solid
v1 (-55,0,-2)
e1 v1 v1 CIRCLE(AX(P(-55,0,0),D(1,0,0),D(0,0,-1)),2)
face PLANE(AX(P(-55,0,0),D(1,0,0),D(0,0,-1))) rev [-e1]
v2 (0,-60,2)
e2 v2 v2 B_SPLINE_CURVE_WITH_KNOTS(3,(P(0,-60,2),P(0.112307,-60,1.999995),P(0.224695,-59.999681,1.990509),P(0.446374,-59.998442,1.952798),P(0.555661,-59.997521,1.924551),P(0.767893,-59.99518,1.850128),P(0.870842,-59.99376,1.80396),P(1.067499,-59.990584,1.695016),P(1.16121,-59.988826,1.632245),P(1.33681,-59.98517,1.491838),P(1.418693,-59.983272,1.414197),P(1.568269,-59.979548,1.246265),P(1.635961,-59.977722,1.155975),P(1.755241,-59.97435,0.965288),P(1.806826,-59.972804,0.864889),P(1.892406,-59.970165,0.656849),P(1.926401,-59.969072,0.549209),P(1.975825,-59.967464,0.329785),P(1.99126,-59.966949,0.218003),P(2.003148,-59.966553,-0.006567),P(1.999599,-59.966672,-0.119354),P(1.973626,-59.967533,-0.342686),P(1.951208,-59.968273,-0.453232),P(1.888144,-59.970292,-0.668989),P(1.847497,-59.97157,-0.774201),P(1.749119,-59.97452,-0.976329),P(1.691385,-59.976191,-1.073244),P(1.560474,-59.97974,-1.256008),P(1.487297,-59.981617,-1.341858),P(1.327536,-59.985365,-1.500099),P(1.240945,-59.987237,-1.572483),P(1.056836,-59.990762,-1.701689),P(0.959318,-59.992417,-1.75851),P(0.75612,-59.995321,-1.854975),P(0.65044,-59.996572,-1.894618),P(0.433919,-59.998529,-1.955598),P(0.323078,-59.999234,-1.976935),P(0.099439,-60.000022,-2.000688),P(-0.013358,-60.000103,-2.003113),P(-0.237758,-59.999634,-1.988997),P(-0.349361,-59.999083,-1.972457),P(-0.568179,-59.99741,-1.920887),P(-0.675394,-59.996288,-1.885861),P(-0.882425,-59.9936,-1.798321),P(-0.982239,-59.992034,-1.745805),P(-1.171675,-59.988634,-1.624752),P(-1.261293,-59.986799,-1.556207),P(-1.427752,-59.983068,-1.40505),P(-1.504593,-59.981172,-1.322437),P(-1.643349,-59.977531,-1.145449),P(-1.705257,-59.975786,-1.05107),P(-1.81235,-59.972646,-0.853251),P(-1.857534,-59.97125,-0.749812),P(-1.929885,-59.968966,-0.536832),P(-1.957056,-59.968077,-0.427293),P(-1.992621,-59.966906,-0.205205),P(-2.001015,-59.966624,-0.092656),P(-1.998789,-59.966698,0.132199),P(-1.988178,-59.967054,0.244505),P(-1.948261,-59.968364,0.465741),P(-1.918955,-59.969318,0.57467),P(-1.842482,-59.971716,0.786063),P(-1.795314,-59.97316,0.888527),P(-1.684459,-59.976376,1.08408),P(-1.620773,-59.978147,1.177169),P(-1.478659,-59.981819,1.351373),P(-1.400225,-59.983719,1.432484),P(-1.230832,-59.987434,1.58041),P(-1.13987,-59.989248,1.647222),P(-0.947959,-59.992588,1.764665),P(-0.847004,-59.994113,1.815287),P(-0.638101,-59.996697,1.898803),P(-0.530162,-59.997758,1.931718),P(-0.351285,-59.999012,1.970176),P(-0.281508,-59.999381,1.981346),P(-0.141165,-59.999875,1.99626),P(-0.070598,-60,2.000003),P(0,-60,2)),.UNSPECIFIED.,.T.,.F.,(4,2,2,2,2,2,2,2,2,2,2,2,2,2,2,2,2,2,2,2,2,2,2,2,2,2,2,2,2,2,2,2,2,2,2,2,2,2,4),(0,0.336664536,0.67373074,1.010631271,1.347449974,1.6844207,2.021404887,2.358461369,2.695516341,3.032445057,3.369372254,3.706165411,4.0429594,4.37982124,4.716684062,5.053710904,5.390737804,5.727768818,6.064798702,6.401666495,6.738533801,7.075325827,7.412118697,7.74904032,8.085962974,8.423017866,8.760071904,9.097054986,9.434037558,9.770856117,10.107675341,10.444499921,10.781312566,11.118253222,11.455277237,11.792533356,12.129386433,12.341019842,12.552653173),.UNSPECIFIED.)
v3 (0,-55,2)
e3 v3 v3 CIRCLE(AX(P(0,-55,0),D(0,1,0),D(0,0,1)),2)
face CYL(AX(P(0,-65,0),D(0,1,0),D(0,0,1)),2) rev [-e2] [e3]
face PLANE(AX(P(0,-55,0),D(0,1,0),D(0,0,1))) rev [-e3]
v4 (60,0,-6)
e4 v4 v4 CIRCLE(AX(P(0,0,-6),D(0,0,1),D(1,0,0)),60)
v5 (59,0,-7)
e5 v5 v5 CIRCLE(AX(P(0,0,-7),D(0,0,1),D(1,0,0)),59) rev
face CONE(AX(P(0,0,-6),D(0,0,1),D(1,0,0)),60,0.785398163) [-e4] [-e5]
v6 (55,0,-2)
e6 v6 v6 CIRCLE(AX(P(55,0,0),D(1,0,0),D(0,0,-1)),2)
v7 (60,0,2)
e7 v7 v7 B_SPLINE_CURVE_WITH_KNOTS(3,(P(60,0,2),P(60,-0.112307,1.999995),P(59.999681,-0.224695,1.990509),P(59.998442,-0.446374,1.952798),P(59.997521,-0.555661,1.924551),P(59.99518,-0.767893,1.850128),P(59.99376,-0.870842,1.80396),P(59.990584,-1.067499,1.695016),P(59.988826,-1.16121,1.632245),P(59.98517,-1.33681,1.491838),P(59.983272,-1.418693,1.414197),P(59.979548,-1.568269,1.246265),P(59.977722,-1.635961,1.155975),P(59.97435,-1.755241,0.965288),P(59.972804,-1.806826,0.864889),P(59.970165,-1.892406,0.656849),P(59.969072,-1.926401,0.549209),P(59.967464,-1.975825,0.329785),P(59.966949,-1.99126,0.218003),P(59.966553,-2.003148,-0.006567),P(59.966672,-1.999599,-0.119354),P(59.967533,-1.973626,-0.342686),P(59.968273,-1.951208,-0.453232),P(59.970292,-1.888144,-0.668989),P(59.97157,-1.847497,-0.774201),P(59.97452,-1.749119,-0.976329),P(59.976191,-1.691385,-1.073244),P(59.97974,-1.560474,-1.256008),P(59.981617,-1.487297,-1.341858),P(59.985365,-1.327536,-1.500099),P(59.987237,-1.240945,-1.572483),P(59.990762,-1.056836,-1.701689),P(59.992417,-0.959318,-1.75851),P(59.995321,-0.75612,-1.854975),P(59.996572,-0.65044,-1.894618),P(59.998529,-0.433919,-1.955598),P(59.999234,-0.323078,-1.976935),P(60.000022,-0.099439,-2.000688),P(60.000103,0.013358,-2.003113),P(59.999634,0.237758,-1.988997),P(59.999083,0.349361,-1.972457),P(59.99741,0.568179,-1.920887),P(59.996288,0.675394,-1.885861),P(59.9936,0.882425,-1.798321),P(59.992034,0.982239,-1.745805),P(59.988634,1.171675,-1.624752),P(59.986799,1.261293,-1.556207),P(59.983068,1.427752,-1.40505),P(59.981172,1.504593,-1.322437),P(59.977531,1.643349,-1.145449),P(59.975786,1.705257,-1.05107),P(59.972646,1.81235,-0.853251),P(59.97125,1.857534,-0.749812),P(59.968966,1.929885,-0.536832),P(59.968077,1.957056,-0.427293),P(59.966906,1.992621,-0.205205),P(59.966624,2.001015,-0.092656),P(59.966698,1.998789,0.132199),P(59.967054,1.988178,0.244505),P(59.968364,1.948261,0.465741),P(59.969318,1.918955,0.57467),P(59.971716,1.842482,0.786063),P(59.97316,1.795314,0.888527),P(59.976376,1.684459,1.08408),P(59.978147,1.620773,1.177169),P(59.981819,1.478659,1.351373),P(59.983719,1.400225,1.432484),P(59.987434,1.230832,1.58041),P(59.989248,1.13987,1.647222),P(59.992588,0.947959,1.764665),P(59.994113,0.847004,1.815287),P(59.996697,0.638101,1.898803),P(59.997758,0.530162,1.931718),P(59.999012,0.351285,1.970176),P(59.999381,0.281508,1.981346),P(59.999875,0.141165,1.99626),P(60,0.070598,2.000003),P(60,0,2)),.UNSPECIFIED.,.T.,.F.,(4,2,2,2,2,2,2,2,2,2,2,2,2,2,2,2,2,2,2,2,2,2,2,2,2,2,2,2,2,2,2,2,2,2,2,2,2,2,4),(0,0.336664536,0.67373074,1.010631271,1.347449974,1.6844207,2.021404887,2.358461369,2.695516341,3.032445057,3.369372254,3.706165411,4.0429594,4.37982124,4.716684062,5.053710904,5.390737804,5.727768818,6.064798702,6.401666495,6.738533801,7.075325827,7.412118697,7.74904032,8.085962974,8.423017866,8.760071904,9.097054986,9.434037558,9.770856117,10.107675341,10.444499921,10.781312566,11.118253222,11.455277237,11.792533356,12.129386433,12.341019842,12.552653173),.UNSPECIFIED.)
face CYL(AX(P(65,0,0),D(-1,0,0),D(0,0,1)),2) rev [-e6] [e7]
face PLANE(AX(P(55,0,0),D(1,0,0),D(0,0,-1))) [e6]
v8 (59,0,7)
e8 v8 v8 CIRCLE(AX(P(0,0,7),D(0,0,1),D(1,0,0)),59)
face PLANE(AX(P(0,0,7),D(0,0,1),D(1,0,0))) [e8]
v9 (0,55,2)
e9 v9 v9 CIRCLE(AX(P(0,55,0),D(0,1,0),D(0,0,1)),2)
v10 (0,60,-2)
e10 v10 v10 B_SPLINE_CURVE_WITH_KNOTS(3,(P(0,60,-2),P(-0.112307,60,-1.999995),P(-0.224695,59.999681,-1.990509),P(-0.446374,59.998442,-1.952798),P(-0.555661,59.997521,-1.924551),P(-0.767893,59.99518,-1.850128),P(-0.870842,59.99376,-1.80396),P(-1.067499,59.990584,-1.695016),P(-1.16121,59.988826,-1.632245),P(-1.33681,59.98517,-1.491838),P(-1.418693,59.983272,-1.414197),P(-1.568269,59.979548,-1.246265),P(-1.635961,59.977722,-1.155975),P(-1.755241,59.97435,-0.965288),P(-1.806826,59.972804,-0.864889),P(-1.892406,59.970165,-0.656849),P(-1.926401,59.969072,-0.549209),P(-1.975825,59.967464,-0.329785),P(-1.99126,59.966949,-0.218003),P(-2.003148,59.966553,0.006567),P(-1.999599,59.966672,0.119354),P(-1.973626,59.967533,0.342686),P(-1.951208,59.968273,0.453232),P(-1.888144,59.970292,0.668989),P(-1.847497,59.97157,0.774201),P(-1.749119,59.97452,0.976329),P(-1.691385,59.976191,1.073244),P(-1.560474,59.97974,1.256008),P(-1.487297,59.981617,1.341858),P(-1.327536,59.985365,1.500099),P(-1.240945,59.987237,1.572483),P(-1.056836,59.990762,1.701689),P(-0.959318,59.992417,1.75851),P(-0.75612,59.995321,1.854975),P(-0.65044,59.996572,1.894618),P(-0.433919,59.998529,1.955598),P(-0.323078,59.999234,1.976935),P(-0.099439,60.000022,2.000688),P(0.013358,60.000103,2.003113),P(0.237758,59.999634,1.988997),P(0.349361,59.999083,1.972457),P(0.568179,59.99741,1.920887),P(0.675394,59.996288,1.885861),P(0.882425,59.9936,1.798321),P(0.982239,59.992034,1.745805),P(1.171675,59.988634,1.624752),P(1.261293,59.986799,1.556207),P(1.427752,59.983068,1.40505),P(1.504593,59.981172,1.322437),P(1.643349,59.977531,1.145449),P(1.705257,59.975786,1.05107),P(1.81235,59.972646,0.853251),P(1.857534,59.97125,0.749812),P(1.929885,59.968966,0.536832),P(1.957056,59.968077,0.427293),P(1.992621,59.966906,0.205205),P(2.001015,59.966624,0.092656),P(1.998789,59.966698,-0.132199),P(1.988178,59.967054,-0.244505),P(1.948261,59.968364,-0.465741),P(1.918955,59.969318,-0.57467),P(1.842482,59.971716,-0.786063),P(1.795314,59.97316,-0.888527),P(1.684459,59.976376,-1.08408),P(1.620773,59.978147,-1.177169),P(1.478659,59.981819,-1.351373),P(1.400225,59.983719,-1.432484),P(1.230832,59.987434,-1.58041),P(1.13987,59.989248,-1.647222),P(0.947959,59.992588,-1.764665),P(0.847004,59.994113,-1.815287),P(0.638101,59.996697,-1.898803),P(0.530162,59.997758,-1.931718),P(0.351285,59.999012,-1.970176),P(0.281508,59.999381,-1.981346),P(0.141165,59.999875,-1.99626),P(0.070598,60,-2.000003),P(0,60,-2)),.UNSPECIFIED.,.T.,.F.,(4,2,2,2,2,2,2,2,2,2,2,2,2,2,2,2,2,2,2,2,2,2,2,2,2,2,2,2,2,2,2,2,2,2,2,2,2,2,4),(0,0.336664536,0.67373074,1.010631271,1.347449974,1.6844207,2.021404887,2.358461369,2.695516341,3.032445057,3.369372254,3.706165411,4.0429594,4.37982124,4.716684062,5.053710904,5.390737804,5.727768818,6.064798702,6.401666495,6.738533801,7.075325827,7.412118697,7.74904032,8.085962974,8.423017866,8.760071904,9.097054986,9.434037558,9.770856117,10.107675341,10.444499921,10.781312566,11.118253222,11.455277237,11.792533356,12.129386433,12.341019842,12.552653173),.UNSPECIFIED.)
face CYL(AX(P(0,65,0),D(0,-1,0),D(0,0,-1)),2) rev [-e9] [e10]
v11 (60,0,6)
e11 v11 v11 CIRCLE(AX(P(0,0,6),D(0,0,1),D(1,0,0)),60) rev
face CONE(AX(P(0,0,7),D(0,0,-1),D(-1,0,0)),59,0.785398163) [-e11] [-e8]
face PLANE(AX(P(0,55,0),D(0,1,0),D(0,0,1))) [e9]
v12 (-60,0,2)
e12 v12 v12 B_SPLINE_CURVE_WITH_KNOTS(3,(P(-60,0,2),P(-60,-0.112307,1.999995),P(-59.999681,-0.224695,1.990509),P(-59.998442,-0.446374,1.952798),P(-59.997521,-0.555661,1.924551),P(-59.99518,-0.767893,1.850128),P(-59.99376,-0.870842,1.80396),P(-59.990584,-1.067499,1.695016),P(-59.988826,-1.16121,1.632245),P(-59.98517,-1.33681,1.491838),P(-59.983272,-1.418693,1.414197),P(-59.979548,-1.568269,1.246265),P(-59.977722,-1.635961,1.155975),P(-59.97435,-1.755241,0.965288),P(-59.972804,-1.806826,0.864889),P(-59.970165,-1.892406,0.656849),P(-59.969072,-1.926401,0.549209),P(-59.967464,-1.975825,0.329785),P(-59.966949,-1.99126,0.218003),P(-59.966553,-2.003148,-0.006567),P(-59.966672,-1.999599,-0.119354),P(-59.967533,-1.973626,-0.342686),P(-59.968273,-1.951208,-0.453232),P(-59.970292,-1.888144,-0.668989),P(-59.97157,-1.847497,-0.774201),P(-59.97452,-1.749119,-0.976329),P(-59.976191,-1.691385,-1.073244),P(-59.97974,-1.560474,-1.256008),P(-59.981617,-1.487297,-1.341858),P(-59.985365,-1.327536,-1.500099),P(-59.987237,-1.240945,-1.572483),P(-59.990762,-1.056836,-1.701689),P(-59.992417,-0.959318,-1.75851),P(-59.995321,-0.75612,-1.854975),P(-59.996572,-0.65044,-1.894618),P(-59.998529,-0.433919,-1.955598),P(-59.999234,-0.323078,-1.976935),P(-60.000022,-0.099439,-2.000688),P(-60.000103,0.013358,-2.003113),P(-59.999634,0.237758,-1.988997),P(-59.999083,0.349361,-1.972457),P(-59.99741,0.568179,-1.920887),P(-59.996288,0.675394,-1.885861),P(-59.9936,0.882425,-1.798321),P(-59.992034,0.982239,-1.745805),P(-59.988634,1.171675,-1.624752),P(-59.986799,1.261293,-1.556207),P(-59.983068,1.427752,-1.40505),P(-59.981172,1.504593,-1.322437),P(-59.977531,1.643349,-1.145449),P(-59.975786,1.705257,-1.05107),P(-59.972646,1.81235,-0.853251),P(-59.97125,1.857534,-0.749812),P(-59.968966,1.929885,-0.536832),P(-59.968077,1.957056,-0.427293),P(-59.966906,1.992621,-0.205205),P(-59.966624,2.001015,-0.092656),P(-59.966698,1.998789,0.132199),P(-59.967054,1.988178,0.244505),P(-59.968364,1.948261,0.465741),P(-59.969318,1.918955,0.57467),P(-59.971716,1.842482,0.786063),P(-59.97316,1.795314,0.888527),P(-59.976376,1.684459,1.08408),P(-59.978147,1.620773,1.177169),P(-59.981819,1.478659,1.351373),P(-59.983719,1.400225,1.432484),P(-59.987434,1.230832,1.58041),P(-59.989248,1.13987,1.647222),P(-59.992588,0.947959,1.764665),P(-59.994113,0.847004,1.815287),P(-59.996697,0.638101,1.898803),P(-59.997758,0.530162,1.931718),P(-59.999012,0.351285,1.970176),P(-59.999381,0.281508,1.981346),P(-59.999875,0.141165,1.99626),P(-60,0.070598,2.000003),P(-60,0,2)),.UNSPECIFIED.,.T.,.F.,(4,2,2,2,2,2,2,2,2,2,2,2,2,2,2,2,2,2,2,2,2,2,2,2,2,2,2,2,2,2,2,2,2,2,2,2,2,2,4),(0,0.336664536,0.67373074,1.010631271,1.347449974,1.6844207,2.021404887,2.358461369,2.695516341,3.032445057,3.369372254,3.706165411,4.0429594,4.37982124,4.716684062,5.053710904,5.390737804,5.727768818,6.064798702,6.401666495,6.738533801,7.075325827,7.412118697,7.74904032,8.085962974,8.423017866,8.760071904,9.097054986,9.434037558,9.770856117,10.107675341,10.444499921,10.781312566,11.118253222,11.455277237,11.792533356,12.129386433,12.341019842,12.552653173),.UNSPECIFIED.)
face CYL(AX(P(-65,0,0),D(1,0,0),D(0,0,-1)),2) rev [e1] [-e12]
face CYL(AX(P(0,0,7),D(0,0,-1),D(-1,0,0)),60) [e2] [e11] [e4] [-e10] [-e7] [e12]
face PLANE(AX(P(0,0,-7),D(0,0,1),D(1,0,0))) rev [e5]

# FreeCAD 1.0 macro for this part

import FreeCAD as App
import Part
import Sketcher
from FreeCAD import Vector
Q = App.Units.Quantity


def edges_at(feature, points):
    """Names of the edges that pass closest to the given points."""
    edges = feature.Shape.Edges
    near = lambda p: min(range(len(edges)), key=lambda i: edges[i].distToShape(Part.Vertex(*p))[0])
    return sorted({f"Edge{near(p) + 1}" for p in points})

doc = App.newDocument("Part")
body = doc.addObject("PartDesign::Body", "Body")

sketch1 = doc.addObject("Sketcher::SketchObject", "Sketch")
body.addObject(sketch1)
sketch1.AttachmentSupport = (doc.XY_Plane, [""])
sketch1.MapMode = "FlatFace"
sketch1.addGeometry(Part.Circle(Vector(0, 0, 0), Vector(0, 0, 1), 60), False)
sketch1.addConstraint(Sketcher.Constraint("Coincident", 0, 3, -1, 1))
sketch1.addConstraint(Sketcher.Constraint("Diameter", 0, Q("120 mm")))
pad1 = doc.addObject("PartDesign::Pad", "Pad")
body.addObject(pad1)
pad1.Profile = sketch1
pad1.Length = 14
pad1.Midplane = True
doc.recompute()

chamfer = doc.addObject("PartDesign::Chamfer", "Chamfer")
body.addObject(chamfer)
chamfer.Base = (pad1, edges_at(pad1, [(-60, 0, -7), (-60, 0, 7)]))
chamfer.Size = 1

sketch2 = doc.addObject("Sketcher::SketchObject", "Sketch001")
body.addObject(sketch2)
sketch2.AttachmentSupport = (doc.XZ_Plane, [""])
sketch2.MapMode = "FlatFace"
sketch2.AttachmentOffset = App.Placement(Vector(0, 0, -55), App.Rotation())
sketch2.addGeometry(Part.Circle(Vector(0, 0, 0), Vector(0, 0, 1), 2), False)
sketch2.addConstraint(Sketcher.Constraint("Coincident", 0, 3, -1, 1))
sketch2.addConstraint(Sketcher.Constraint("Diameter", 0, Q("4 mm")))
pocket1 = doc.addObject("PartDesign::Pocket", "Pocket")
body.addObject(pocket1)
pocket1.Profile = sketch2
pocket1.Length = 10

sketch3 = doc.addObject("Sketcher::SketchObject", "Sketch002")
body.addObject(sketch3)
sketch3.AttachmentSupport = (doc.XZ_Plane, [""])
sketch3.MapMode = "FlatFace"
sketch3.AttachmentOffset = App.Placement(Vector(0, 0, 65), App.Rotation())
sketch3.addGeometry(Part.Circle(Vector(0, 0, 0), Vector(0, 0, 1), 2), False)
sketch3.addConstraint(Sketcher.Constraint("Coincident", 0, 3, -1, 1))
sketch3.addConstraint(Sketcher.Constraint("Diameter", 0, Q("4 mm")))
pocket2 = doc.addObject("PartDesign::Pocket", "Pocket001")
body.addObject(pocket2)
pocket2.Profile = sketch3
pocket2.Length = 10

sketch4 = doc.addObject("Sketcher::SketchObject", "Sketch003")
body.addObject(sketch4)
sketch4.AttachmentSupport = (doc.YZ_Plane, [""])
sketch4.MapMode = "FlatFace"
sketch4.AttachmentOffset = App.Placement(Vector(0, 0, 55), App.Rotation())
sketch4.addGeometry(Part.Circle(Vector(0, 0, 0), Vector(0, 0, 1), 2), False)
sketch4.addConstraint(Sketcher.Constraint("Coincident", 0, 3, -1, 1))
sketch4.addConstraint(Sketcher.Constraint("Diameter", 0, Q("4 mm")))
pocket3 = doc.addObject("PartDesign::Pocket", "Pocket002")
body.addObject(pocket3)
pocket3.Profile = sketch4
pocket3.Length = 10
pocket3.Reversed = True

sketch5 = doc.addObject("Sketcher::SketchObject", "Sketch004")
body.addObject(sketch5)
sketch5.AttachmentSupport = (doc.YZ_Plane, [""])
sketch5.MapMode = "FlatFace"
sketch5.AttachmentOffset = App.Placement(Vector(0, 0, -65), App.Rotation())
sketch5.addGeometry(Part.Circle(Vector(0, 0, 0), Vector(0, 0, 1), 2), False)
sketch5.addConstraint(Sketcher.Constraint("Coincident", 0, 3, -1, 1))
sketch5.addConstraint(Sketcher.Constraint("Diameter", 0, Q("4 mm")))
pocket4 = doc.addObject("PartDesign::Pocket", "Pocket003")
body.addObject(pocket4)
pocket4.Profile = sketch5
pocket4.Length = 10
pocket4.Reversed = True

doc.recompute()
